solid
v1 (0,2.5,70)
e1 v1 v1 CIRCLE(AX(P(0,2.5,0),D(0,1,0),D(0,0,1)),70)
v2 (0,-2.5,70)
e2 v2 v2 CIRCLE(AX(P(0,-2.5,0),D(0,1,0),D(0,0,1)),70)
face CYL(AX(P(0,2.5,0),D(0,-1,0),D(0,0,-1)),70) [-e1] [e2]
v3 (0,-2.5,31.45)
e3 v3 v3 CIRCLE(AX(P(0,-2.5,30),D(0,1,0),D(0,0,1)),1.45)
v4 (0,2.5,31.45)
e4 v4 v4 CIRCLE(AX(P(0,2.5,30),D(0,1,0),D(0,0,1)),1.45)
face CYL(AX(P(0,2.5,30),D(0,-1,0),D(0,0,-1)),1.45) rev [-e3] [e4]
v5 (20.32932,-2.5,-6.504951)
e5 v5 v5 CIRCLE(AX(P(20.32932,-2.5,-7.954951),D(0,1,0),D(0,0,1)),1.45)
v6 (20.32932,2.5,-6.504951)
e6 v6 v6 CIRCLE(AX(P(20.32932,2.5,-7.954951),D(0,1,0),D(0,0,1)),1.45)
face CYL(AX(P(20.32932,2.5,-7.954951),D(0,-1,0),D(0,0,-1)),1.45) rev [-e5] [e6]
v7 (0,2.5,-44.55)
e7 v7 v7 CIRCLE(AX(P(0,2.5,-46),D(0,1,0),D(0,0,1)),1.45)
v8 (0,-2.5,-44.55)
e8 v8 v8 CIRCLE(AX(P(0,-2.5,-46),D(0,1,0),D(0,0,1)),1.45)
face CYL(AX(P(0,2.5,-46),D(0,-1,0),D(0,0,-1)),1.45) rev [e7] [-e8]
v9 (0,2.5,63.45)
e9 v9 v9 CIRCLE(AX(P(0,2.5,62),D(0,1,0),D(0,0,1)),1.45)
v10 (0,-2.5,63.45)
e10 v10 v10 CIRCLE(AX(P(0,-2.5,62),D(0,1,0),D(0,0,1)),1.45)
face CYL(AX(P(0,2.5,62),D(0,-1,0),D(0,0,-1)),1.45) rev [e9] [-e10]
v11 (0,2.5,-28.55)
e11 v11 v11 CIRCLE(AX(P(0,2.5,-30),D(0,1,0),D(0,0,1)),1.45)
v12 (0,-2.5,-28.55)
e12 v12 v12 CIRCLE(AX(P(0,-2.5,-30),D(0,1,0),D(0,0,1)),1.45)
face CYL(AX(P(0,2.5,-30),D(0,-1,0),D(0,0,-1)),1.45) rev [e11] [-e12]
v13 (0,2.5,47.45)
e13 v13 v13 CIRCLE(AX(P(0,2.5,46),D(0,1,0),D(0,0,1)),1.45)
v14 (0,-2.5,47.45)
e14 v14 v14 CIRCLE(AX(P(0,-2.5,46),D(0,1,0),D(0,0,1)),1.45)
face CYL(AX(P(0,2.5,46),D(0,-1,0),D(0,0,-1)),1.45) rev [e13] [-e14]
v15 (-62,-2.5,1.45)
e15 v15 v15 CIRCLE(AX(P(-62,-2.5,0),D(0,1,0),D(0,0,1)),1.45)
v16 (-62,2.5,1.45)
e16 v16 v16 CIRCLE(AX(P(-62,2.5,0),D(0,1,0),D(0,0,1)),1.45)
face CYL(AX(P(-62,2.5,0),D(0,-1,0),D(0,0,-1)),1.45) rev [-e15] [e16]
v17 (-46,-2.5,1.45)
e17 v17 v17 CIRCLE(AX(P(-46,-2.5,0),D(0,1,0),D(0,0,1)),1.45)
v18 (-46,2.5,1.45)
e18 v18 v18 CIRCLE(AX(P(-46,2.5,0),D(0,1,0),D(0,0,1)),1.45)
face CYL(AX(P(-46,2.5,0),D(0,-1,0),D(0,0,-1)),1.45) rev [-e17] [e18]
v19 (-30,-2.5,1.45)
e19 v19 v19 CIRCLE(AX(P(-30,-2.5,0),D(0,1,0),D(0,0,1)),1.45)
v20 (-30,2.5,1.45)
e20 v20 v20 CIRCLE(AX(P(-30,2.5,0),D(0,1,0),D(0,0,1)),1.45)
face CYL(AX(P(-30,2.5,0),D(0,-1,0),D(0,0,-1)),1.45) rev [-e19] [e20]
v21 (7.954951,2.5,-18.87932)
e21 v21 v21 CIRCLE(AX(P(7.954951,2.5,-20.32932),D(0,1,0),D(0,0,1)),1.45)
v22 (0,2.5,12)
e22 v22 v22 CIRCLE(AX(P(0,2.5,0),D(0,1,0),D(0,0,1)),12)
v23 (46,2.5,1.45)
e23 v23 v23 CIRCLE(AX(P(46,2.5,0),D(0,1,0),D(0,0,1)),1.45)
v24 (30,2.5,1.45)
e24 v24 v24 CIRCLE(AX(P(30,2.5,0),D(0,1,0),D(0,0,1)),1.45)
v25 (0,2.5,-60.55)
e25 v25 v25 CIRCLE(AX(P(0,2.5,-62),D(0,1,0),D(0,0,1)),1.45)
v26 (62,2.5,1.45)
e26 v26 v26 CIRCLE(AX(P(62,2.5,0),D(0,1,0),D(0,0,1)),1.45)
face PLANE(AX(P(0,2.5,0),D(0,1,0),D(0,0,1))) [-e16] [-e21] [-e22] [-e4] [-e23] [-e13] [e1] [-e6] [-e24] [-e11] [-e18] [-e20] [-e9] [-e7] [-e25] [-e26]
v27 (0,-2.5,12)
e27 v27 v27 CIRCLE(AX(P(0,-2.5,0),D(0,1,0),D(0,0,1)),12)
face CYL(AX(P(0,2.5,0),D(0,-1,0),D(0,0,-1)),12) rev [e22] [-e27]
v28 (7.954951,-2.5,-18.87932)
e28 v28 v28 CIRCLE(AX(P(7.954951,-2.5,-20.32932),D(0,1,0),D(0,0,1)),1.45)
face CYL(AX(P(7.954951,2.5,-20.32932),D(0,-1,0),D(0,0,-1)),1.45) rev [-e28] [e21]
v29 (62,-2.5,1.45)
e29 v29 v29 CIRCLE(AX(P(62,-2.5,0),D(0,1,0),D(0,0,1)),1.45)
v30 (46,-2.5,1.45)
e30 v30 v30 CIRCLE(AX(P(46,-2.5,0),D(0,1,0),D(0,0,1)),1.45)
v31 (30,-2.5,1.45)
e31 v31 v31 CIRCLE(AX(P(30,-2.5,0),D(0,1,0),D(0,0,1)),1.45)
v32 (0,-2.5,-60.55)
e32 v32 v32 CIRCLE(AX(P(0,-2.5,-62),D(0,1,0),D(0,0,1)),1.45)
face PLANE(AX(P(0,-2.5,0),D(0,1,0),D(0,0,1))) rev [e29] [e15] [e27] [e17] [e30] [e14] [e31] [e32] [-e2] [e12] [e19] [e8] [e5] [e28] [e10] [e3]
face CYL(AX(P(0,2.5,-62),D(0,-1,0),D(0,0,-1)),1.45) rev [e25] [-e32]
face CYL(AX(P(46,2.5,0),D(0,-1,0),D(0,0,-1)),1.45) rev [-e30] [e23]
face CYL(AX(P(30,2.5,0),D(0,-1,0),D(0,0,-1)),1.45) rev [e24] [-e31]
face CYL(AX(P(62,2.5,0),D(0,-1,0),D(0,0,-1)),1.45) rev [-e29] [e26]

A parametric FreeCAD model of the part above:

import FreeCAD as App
import Part
import Sketcher

doc = App.newDocument("Part")
body = doc.addObject("PartDesign::Body", "Body")

sketch1 = body.newObject("Sketcher::SketchObject", "Sketch")
sketch1.AttachmentSupport = (doc.getObject("XZ_Plane"), [""])
sketch1.MapMode = "FlatFace"
sketch1.addGeometry(Part.Circle(App.Vector(0, 0, 0), App.Vector(0, 0, 1), 70), False)
sketch1.addGeometry(Part.Circle(App.Vector(0, 62, 0), App.Vector(0, 0, 1), 1.4), False)
sketch1.addGeometry(Part.Circle(App.Vector(0, 46, 0), App.Vector(0, 0, 1), 1.4), False)
sketch1.addGeometry(Part.Circle(App.Vector(0, 30, 0), App.Vector(0, 0, 1), 1.4), False)
sketch1.addGeometry(Part.Circle(App.Vector(-62, 0, 0), App.Vector(0, 0, 1), 1.4), False)
sketch1.addGeometry(Part.Circle(App.Vector(-46, 0, 0), App.Vector(0, 0, 1), 1.4), False)
sketch1.addGeometry(Part.Circle(App.Vector(-30, 0, 0), App.Vector(0, 0, 1), 1.4), False)
sketch1.addGeometry(Part.Circle(App.Vector(0, 0, 0), App.Vector(0, 0, 1), 12), False)
sketch1.addGeometry(Part.Circle(App.Vector(30, 0, 0), App.Vector(0, 0, 1), 1.4), False)
sketch1.addGeometry(Part.Circle(App.Vector(20.3, -8, 0), App.Vector(0, 0, 1), 1.4), False)
sketch1.addGeometry(Part.Circle(App.Vector(8, -20.3, 0), App.Vector(0, 0, 1), 1.4), False)
sketch1.addGeometry(Part.Circle(App.Vector(0, -30, 0), App.Vector(0, 0, 1), 1.4), False)
sketch1.addGeometry(Part.Circle(App.Vector(46, 0, 0), App.Vector(0, 0, 1), 1.4), False)
sketch1.addGeometry(Part.Circle(App.Vector(62, 0, 0), App.Vector(0, 0, 1), 1.4), False)
sketch1.addGeometry(Part.Circle(App.Vector(0, -46, 0), App.Vector(0, 0, 1), 1.4), False)
sketch1.addGeometry(Part.Circle(App.Vector(0, -62, 0), App.Vector(0, 0, 1), 1.4), False)
sketch1.addConstraint(Sketcher.Constraint("Coincident", 0, 3, -1, 1))
sketch1.addConstraint(Sketcher.Constraint("Coincident", 7, 3, -1, 1))
sketch1.addConstraint(Sketcher.Constraint("Equal", 1, 2))
sketch1.addConstraint(Sketcher.Constraint("Equal", 2, 3))
sketch1.addConstraint(Sketcher.Constraint("Equal", 3, 4))
sketch1.addConstraint(Sketcher.Constraint("Equal", 4, 5))
sketch1.addConstraint(Sketcher.Constraint("Equal", 5, 6))
sketch1.addConstraint(Sketcher.Constraint("Equal", 6, 8))
sketch1.addConstraint(Sketcher.Constraint("Equal", 8, 9))
sketch1.addConstraint(Sketcher.Constraint("Equal", 9, 10))
sketch1.addConstraint(Sketcher.Constraint("Equal", 10, 11))
sketch1.addConstraint(Sketcher.Constraint("Equal", 11, 12))
sketch1.addConstraint(Sketcher.Constraint("Equal", 12, 13))
sketch1.addConstraint(Sketcher.Constraint("Equal", 13, 14))
sketch1.addConstraint(Sketcher.Constraint("Equal", 14, 15))
sketch1.addConstraint(Sketcher.Constraint("Symmetric", 6, 3, 8, 3, -1, 1))
sketch1.addConstraint(Sketcher.Constraint("Symmetric", 3, 3, 11, 3, -1, 1))
sketch1.addConstraint(Sketcher.Constraint("Symmetric", 5, 3, 12, 3, -1, 1))
sketch1.addConstraint(Sketcher.Constraint("Symmetric", 4, 3, 13, 3, -1, 1))
sketch1.addConstraint(Sketcher.Constraint("Symmetric", 2, 3, 14, 3, -1, 1))
sketch1.addConstraint(Sketcher.Constraint("Symmetric", 1, 3, 15, 3, -1, 1))
sketch1.addConstraint(Sketcher.Constraint("PointOnObject", 1, 3, -2))
sketch1.addConstraint(Sketcher.Constraint("PointOnObject", 2, 3, -2))
sketch1.addConstraint(Sketcher.Constraint("PointOnObject", 3, 3, -2))
sketch1.addConstraint(Sketcher.Constraint("PointOnObject", 4, 3, -1))
sketch1.addConstraint(Sketcher.Constraint("PointOnObject", 5, 3, -1))
sketch1.addConstraint(Sketcher.Constraint("PointOnObject", 6, 3, -1))
sketch1.addConstraint(Sketcher.Constraint("Diameter", 0, 140.0))
sketch1.addConstraint(Sketcher.Constraint("Diameter", 7, 24.0))
sketch1.addConstraint(Sketcher.Constraint("Diameter", 1, 2.9))
sketch1.addConstraint(Sketcher.Constraint("DistanceY", -1, 1, 1, 3, 62.0))
sketch1.addConstraint(Sketcher.Constraint("DistanceY", -1, 1, 2, 3, 46.0))
sketch1.addConstraint(Sketcher.Constraint("DistanceY", -1, 1, 3, 3, 30.0))
sketch1.addConstraint(Sketcher.Constraint("DistanceX", 4, 3, -1, 1, 62.0))
sketch1.addConstraint(Sketcher.Constraint("DistanceX", 5, 3, -1, 1, 46.0))
sketch1.addConstraint(Sketcher.Constraint("DistanceX", 6, 3, -1, 1, 30.0))
sketch1.addConstraint(Sketcher.Constraint("DistanceX", -1, 1, 9, 3, 20.32932))
sketch1.addConstraint(Sketcher.Constraint("DistanceY", 9, 3, -1, 1, 7.954951))
sketch1.addConstraint(Sketcher.Constraint("DistanceX", -1, 1, 10, 3, 7.954951))
sketch1.addConstraint(Sketcher.Constraint("DistanceY", 10, 3, -1, 1, 20.32932))
pad1 = body.newObject("PartDesign::Pad", "Pad")
pad1.Profile = sketch1
pad1.Length = 5
pad1.Midplane = True

doc.recompute()
